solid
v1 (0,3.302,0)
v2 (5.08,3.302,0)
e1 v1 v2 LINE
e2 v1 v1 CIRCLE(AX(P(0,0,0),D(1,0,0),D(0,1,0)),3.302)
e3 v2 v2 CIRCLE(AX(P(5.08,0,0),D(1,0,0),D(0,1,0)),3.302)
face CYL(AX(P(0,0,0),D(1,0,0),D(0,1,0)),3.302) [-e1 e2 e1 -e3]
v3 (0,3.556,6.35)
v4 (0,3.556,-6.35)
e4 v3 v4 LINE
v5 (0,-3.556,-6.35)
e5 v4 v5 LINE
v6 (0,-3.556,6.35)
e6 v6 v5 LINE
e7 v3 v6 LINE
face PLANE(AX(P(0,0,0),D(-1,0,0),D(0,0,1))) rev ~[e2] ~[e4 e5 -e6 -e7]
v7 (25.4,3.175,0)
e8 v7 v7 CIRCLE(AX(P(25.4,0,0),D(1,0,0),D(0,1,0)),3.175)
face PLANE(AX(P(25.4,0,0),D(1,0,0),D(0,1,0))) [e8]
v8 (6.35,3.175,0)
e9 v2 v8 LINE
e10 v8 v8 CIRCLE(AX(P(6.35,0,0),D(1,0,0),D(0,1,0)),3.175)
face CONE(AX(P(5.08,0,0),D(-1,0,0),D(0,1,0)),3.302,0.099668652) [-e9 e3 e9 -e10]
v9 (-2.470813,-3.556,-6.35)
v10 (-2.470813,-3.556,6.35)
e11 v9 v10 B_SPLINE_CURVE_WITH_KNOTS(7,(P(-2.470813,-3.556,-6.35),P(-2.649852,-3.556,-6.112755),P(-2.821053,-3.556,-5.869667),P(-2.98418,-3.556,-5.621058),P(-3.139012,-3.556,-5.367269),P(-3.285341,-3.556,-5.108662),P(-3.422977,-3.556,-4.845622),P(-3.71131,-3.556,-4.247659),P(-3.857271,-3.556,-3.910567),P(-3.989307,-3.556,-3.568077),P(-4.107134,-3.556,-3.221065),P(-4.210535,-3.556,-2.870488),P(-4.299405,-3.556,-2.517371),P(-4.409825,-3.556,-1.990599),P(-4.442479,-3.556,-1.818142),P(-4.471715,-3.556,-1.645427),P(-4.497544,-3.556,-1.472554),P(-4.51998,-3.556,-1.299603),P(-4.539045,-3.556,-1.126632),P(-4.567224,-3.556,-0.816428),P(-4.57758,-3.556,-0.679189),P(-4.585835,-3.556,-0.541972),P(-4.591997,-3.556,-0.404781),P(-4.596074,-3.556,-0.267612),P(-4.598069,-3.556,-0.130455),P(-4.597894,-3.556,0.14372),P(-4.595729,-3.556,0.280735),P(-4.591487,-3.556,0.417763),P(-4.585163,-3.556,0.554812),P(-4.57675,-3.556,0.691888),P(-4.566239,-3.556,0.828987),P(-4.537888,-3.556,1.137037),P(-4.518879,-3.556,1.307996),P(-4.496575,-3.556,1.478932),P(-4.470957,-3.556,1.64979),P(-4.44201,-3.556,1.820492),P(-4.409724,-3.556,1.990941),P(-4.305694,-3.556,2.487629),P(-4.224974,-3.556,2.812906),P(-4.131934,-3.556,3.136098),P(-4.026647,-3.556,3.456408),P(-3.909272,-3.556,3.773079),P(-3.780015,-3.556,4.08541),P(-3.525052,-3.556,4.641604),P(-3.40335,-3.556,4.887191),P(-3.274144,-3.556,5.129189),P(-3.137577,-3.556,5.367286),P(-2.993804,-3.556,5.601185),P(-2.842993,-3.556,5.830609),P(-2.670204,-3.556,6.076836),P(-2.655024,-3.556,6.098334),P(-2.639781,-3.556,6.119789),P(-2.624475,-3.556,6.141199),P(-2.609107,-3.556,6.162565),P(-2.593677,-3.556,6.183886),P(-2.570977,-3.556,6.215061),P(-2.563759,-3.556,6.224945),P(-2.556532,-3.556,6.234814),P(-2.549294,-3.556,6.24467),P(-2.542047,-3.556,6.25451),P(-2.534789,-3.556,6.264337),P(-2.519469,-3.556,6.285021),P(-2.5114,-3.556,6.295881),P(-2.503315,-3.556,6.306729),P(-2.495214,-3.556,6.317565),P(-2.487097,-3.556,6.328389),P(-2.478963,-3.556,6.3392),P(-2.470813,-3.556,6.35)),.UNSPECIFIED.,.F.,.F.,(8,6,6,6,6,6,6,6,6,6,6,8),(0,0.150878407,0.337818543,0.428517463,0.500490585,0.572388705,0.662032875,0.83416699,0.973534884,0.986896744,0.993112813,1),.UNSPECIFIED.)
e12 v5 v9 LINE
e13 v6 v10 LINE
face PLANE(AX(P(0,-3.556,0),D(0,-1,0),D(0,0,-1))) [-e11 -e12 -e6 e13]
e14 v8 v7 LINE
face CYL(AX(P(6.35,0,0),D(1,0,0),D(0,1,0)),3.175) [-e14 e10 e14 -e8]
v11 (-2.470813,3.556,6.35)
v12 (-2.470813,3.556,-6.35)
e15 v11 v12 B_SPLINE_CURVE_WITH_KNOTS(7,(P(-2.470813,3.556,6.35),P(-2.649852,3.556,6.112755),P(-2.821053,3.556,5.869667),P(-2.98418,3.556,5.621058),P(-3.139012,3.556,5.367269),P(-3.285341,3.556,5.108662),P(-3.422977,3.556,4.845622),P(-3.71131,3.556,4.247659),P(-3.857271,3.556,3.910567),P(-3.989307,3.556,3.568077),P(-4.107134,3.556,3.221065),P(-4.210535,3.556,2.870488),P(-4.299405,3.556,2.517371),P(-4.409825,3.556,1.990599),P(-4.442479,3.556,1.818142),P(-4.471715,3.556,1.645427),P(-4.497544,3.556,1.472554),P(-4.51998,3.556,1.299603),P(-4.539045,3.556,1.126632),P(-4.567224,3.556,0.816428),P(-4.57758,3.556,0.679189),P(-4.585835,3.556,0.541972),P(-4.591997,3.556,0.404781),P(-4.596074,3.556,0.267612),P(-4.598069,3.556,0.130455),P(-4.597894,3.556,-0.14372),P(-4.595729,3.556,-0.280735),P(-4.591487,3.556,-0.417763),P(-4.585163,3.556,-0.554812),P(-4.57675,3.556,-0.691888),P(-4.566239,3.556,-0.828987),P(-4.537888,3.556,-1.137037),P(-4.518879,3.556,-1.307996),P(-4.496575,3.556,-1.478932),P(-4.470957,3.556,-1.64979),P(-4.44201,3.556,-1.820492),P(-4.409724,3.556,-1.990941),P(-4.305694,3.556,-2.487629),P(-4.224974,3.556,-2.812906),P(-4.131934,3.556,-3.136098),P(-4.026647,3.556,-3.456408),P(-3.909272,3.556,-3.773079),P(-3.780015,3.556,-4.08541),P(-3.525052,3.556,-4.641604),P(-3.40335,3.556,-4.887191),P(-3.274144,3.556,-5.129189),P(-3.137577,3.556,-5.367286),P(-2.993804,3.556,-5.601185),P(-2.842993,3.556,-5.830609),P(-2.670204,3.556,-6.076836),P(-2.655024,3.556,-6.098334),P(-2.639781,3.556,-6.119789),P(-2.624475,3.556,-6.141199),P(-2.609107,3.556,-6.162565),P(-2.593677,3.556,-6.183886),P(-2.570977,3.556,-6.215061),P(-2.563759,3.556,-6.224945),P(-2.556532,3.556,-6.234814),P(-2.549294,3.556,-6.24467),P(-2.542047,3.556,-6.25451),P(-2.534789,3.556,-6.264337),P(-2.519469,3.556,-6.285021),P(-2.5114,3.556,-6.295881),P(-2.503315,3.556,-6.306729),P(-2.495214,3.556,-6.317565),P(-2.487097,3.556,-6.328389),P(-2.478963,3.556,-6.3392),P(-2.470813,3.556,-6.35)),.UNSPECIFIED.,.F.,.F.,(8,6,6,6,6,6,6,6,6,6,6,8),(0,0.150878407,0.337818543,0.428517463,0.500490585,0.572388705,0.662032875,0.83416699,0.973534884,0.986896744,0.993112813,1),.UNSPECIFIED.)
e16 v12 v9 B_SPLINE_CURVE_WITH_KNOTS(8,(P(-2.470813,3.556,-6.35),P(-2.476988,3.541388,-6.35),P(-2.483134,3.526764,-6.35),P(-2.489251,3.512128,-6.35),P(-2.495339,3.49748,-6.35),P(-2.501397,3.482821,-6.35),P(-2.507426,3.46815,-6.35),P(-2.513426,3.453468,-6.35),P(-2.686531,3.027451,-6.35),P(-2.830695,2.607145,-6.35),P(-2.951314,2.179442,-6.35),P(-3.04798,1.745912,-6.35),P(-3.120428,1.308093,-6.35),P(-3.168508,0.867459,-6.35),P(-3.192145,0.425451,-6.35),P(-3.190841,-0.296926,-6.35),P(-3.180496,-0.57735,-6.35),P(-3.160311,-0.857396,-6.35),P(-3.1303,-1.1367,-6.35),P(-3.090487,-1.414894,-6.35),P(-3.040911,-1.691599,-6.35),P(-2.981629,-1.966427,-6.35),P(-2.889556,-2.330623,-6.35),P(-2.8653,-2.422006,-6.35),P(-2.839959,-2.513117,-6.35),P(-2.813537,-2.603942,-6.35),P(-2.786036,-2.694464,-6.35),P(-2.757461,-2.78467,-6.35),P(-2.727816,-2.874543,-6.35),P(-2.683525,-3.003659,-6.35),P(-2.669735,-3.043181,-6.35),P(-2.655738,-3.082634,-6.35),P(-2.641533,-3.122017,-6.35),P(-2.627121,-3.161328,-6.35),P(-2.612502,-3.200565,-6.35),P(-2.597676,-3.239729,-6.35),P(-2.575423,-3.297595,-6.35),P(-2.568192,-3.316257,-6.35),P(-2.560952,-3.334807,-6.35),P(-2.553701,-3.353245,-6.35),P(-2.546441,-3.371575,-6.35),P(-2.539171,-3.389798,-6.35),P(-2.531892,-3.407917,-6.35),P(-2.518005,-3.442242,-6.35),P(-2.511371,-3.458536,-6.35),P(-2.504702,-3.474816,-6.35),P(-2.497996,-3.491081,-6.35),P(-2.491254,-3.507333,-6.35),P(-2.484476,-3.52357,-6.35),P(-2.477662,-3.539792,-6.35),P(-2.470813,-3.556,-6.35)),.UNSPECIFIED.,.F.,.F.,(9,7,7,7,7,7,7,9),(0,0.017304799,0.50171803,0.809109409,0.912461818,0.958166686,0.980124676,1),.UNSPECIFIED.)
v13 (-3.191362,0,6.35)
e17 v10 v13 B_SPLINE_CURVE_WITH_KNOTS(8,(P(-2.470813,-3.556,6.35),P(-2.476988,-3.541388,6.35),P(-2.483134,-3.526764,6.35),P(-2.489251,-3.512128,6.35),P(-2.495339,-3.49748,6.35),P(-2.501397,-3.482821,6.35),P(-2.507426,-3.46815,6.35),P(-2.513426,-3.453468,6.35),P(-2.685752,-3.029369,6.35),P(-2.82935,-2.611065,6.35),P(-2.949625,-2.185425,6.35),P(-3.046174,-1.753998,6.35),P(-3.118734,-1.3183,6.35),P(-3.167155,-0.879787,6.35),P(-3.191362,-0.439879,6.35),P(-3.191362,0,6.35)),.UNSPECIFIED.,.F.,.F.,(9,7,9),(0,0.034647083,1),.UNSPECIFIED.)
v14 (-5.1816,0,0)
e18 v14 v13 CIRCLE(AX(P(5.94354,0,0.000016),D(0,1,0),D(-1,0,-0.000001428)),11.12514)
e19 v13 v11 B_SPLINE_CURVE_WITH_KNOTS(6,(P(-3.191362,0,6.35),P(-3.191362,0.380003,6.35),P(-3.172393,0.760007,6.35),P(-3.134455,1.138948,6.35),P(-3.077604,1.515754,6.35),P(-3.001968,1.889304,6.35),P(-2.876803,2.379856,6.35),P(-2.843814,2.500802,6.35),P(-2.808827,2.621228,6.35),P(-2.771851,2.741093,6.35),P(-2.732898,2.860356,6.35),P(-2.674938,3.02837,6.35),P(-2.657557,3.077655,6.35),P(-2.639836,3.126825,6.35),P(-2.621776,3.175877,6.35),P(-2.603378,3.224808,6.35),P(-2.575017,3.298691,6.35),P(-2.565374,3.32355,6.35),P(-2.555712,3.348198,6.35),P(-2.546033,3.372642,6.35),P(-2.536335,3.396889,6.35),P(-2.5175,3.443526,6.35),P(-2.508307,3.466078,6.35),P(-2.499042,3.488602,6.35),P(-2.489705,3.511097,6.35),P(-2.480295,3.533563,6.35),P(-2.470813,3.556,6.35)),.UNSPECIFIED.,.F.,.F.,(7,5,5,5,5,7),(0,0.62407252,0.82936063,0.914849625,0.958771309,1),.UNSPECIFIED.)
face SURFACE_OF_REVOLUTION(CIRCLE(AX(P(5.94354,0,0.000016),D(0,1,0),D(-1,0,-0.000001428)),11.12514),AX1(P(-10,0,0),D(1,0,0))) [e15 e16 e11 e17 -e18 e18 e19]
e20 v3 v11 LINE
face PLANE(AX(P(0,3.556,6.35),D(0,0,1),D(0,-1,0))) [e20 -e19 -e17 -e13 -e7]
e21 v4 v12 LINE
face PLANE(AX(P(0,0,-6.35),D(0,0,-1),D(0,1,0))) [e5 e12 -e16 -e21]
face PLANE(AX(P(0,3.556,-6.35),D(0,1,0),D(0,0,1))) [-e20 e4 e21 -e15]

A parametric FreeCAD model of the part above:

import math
import FreeCAD as App
import Part
import Sketcher
Q = App.Units.Quantity

doc = App.newDocument("Part")
params = doc.addObject("Spreadsheet::Sheet", "Params")
for row, (alias, value) in enumerate([
    ("sketch1_width", "1 in"),
    ("sketch1_width2", "0.75 in"),
    ("sketch1_height", "0.13 in"),
    ("sketch1_height2", "0.125 in"),
    ("revolution_angle", "360 deg"),
    ("sketch2_height", "0.5 in"),
    ("sketch2_width", "0.28 in"),
    ("pad1_length", "0.204 in"),
    ("sketch3_radius", "0.438 in"),
    ("sketch3_height", "0.375 in"),
    ("groove_angle", "360 deg"),
], start=1):
    params.set(f"A{row}", alias)
    params.set(f"B{row}", "=" + value)
    params.setAlias(f"B{row}", alias)

body = doc.addObject("PartDesign::Body", "Body")

# Sketch on XY plane
sketch1 = body.newObject("Sketcher::SketchObject", "Sketch")
sketch1.AttachmentSupport = (doc.getObject("XY_Plane"), [""])
sketch1.MapMode = "FlatFace"
sketch1.addGeometry(Part.LineSegment(App.Vector(5.08, 3.302, 0), App.Vector(0, 3.302, 0)), False)
sketch1.addGeometry(Part.LineSegment(App.Vector(0, 3.302, 0), App.Vector(0, 0, 0)), False)
sketch1.addGeometry(Part.LineSegment(App.Vector(0, 0, 0), App.Vector(25.4, 0, 0)), False)
sketch1.addGeometry(Part.LineSegment(App.Vector(25.4, 0, 0), App.Vector(25.4, 3.175, 0)), False)
sketch1.addGeometry(Part.LineSegment(App.Vector(25.4, 3.175, 0), App.Vector(6.35, 3.175, 0)), False)
sketch1.addGeometry(Part.LineSegment(App.Vector(6.35, 3.175, 0), App.Vector(5.08, 3.302, 0)), False)
sketch1.addConstraint(Sketcher.Constraint("Coincident", 0, 2, 1, 1))
sketch1.addConstraint(Sketcher.Constraint("Coincident", 1, 2, 2, 1))
sketch1.addConstraint(Sketcher.Constraint("Coincident", 2, 2, 3, 1))
sketch1.addConstraint(Sketcher.Constraint("Coincident", 3, 2, 4, 1))
sketch1.addConstraint(Sketcher.Constraint("Coincident", 4, 2, 5, 1))
sketch1.addConstraint(Sketcher.Constraint("Coincident", 5, 2, 0, 1))
sketch1.addConstraint(Sketcher.Constraint("Horizontal", 0))
sketch1.addConstraint(Sketcher.Constraint("Vertical", 1))
sketch1.addConstraint(Sketcher.Constraint("Horizontal", 2))
sketch1.addConstraint(Sketcher.Constraint("Vertical", 3))
sketch1.addConstraint(Sketcher.Constraint("Horizontal", 4))
sketch1.addConstraint(Sketcher.Constraint("Coincident", 1, 2, -1, 1))
sketch1.addConstraint(Sketcher.Constraint("DistanceX", 2, 1, 2, 2, Q("1 in")))
sketch1.addConstraint(Sketcher.Constraint("DistanceX", 4, 2, 4, 1, Q("0.75 in")))
sketch1.addConstraint(Sketcher.Constraint("DistanceX", 5, 2, 4, 2, Q("0.05 in")))
sketch1.addConstraint(Sketcher.Constraint("DistanceY", 1, 2, 1, 1, Q("0.13 in")))
sketch1.addConstraint(Sketcher.Constraint("DistanceY", 3, 1, 3, 2, Q("0.125 in")))
sketch1.setExpression("Constraints[12]", "Params.sketch1_width")
sketch1.setExpression("Constraints[13]", "Params.sketch1_width2")
sketch1.setExpression("Constraints[15]", "Params.sketch1_height")
sketch1.setExpression("Constraints[16]", "Params.sketch1_height2")
revolution = body.newObject("PartDesign::Revolution", "Revolution")
revolution.Profile = sketch1
revolution.ReferenceAxis = (sketch1, ["H_Axis"])
revolution.setExpression("Angle", "Params.revolution_angle")

# Sketch on YZ plane
sketch2 = body.newObject("Sketcher::SketchObject", "Sketch001")
sketch2.AttachmentSupport = (doc.getObject("YZ_Plane"), [""])
sketch2.MapMode = "FlatFace"
sketch2.addGeometry(Part.LineSegment(App.Vector(3.556, -6.35, 0), App.Vector(-3.556, -6.35, 0)), False)
sketch2.addGeometry(Part.LineSegment(App.Vector(-3.556, -6.35, 0), App.Vector(-3.556, 6.35, 0)), False)
sketch2.addGeometry(Part.LineSegment(App.Vector(-3.556, 6.35, 0), App.Vector(3.556, 6.35, 0)), False)
sketch2.addGeometry(Part.LineSegment(App.Vector(3.556, 6.35, 0), App.Vector(3.556, -6.35, 0)), False)
sketch2.addConstraint(Sketcher.Constraint("Coincident", 0, 2, 1, 1))
sketch2.addConstraint(Sketcher.Constraint("Coincident", 1, 2, 2, 1))
sketch2.addConstraint(Sketcher.Constraint("Coincident", 2, 2, 3, 1))
sketch2.addConstraint(Sketcher.Constraint("Coincident", 3, 2, 0, 1))
sketch2.addConstraint(Sketcher.Constraint("Horizontal", 0))
sketch2.addConstraint(Sketcher.Constraint("Vertical", 1))
sketch2.addConstraint(Sketcher.Constraint("Horizontal", 2))
sketch2.addConstraint(Sketcher.Constraint("Vertical", 3))
sketch2.addConstraint(Sketcher.Constraint("Symmetric", 0, 2, 2, 2, -1, 1))
sketch2.addConstraint(Sketcher.Constraint("DistanceY", 1, 1, 1, 2, Q("0.5 in")))
sketch2.addConstraint(Sketcher.Constraint("DistanceX", 0, 2, 0, 1, Q("0.28 in")))
sketch2.setExpression("Constraints[9]", "Params.sketch2_height")
sketch2.setExpression("Constraints[10]", "Params.sketch2_width")
pad1 = body.newObject("PartDesign::Pad", "Pad")
pad1.Profile = sketch2
pad1.setExpression("Length", "Params.pad1_length")
pad1.Reversed = True

# Sketch on XZ plane
sketch3 = body.newObject("Sketcher::SketchObject", "Sketch002")
sketch3.AttachmentSupport = (doc.getObject("XZ_Plane"), [""])
sketch3.MapMode = "FlatFace"
sketch3.addGeometry(Part.LineSegment(App.Vector(-5.1816, 0, 0), App.Vector(-5.1816, 9.525, 0)), False)
sketch3.addGeometry(Part.LineSegment(App.Vector(-5.1816, 9.525, 0), App.Vector(0.1952, 9.525, 0)), False)
sketch3.addGeometry(Part.ArcOfCircle(Part.Circle(App.Vector(5.9436, 0, 0), App.Vector(0, 0, 1), 11.1252), math.radians(121.111257), math.radians(180)), False)
sketch3.addConstraint(Sketcher.Constraint("Coincident", 0, 2, 1, 1))
sketch3.addConstraint(Sketcher.Constraint("Coincident", 1, 2, 2, 1))
sketch3.addConstraint(Sketcher.Constraint("Tangent", 2, 2, 0, 1))
sketch3.addConstraint(Sketcher.Constraint("Vertical", 0))
sketch3.addConstraint(Sketcher.Constraint("Horizontal", 1))
sketch3.addConstraint(Sketcher.Constraint("PointOnObject", 2, 3, -1))
sketch3.addConstraint(Sketcher.Constraint("Radius", 2, Q("0.438 in")))
sketch3.addConstraint(Sketcher.Constraint("DistanceY", 0, 1, 0, 2, Q("0.375 in")))
sketch3.addConstraint(Sketcher.Constraint("DistanceX", -1, 1, 2, 3, Q("0.234 in")))
sketch3.setExpression("Constraints[6]", "Params.sketch3_radius")
sketch3.setExpression("Constraints[7]", "Params.sketch3_height")
groove = body.newObject("PartDesign::Groove", "Groove")
groove.Profile = sketch3
groove.ReferenceAxis = (sketch3, ["H_Axis"])
groove.setExpression("Angle", "Params.groove_angle")

doc.recompute()
